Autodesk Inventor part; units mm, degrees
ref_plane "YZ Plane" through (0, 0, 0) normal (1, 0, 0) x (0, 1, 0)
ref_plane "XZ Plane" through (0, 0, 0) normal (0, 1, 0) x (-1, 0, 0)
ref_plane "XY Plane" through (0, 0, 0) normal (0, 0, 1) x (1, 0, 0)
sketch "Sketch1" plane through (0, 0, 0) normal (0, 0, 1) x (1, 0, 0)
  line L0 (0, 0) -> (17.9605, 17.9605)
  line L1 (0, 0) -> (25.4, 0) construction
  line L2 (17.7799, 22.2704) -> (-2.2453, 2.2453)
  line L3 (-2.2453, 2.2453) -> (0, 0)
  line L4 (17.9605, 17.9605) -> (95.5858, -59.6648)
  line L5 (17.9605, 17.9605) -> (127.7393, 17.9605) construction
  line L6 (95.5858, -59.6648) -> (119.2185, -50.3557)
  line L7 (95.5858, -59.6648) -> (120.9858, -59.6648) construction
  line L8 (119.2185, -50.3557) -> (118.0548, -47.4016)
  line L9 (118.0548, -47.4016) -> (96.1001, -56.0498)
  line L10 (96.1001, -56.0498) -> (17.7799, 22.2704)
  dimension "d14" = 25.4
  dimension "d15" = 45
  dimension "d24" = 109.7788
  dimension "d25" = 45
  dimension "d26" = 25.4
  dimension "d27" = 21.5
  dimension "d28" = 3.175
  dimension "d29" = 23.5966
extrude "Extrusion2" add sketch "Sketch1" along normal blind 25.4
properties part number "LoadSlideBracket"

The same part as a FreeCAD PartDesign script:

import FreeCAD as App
import Part
import Sketcher
Q = App.Units.Quantity

doc = App.newDocument("Part")
body = doc.addObject("PartDesign::Body", "Body")

# Sketch on XY plane
sketch1 = body.newObject("Sketcher::SketchObject", "Sketch")
sketch1.AttachmentSupport = (doc.getObject("XY_Plane"), [""])
sketch1.MapMode = "FlatFace"
sketch1.addGeometry([
    Part.LineSegment(App.Vector(-2.2, 2.2, 0), App.Vector(0, 0, 0)),  # 0
    Part.LineSegment(App.Vector(0, 0, 0), App.Vector(18, 18, 0)),  # 1
    Part.LineSegment(App.Vector(18, 18, 0), App.Vector(95.6, -59.7, 0)),  # 2
    Part.LineSegment(App.Vector(95.6, -59.7, 0), App.Vector(119.2, -50.4, 0)),  # 3
    Part.LineSegment(App.Vector(119.2, -50.4, 0), App.Vector(118.1, -47.4, 0)),  # 4
    Part.LineSegment(App.Vector(118.1, -47.4, 0), App.Vector(96.1, -56, 0)),  # 5
    Part.LineSegment(App.Vector(96.1, -56, 0), App.Vector(17.8, 22.3, 0)),  # 6
    Part.LineSegment(App.Vector(17.8, 22.3, 0), App.Vector(-2.2, 2.2, 0)),  # 7
], False)
sketch1.addConstraint([
    Sketcher.Constraint("Coincident", 0, 2, 1, 1),
    Sketcher.Constraint("Coincident", 1, 2, 2, 1),
    Sketcher.Constraint("Coincident", 2, 2, 3, 1),
    Sketcher.Constraint("Coincident", 3, 2, 4, 1),
    Sketcher.Constraint("Coincident", 4, 2, 5, 1),
    Sketcher.Constraint("Coincident", 5, 2, 6, 1),
    Sketcher.Constraint("Coincident", 6, 2, 7, 1),
    Sketcher.Constraint("Coincident", 7, 2, 0, 1),
    Sketcher.Constraint("Coincident", 0, 2, -1, 1),
    Sketcher.Constraint("Perpendicular", 0, 1),
    Sketcher.Constraint("Perpendicular", 1, 2),
    Sketcher.Constraint("Perpendicular", 3, 4),
    Sketcher.Constraint("Perpendicular", 4, 5),
    Sketcher.Constraint("Parallel", 2, 6),
    Sketcher.Constraint("Perpendicular", 6, 7),
    Sketcher.Constraint("Equal", 1, 3),
    Sketcher.Constraint("Distance", 1, Q("1 in")),
    Sketcher.Constraint("Angle", 0, Q("-45 deg")),
    Sketcher.Constraint("Angle", 3, Q("21.4999 deg")),
    Sketcher.Constraint("Distance", 2, Q("4.322 in")),
    Sketcher.Constraint("Distance", 4, Q("0.125 in")),
    Sketcher.Constraint("Distance", 5, Q("0.929 in")),
    Sketcher.Constraint("DistanceX", -1, 1, 6, 2, Q("0.7 in")),
])
pad1 = body.newObject("PartDesign::Pad", "Pad")
pad1.Profile = sketch1
pad1.Length = Q("1 in")

doc.recompute()
